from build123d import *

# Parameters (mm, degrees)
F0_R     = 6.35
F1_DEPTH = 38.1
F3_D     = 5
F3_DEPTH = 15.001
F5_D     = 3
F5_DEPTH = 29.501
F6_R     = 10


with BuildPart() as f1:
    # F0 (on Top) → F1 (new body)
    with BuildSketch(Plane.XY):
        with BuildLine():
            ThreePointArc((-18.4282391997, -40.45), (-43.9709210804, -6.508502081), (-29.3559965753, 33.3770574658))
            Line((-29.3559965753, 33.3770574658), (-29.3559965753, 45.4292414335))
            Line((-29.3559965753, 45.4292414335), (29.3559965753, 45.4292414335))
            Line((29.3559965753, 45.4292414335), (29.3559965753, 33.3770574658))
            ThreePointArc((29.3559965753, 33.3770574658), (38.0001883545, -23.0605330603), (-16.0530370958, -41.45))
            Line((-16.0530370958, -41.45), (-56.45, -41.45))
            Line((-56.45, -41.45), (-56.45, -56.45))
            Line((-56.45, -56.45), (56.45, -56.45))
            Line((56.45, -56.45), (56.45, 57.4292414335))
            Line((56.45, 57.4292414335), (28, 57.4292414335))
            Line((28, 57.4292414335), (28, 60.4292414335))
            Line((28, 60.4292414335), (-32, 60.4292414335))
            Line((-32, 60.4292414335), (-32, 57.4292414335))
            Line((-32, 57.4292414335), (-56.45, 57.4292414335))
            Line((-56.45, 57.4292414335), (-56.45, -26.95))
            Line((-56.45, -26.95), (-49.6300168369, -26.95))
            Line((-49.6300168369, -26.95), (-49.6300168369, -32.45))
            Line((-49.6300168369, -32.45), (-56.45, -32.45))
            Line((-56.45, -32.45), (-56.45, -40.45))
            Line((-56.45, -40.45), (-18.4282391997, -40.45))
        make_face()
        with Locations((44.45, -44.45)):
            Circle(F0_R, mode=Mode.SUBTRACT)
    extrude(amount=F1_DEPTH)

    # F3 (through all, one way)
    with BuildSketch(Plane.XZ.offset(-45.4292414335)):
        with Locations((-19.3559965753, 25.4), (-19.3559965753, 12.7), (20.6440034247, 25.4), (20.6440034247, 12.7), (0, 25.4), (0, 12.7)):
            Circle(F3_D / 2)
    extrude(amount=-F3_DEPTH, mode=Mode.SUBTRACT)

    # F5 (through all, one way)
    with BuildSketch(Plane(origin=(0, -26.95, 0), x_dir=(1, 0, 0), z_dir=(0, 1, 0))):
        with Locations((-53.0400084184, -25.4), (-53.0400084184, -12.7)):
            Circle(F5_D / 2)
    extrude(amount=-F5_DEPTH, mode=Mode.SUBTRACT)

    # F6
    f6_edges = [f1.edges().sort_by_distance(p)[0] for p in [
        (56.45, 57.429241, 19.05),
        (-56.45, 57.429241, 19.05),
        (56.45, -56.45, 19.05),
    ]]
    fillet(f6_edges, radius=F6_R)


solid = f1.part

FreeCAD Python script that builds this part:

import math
import FreeCAD as App
import Part
import Sketcher
from FreeCAD import Vector
Q = App.Units.Quantity


def edges_at(feature, points):
    """Names of the edges that pass closest to the given points."""
    edges = feature.Shape.Edges
    near = lambda p: min(range(len(edges)), key=lambda i: edges[i].distToShape(Part.Vertex(*p))[0])
    return sorted({f"Edge{near(p) + 1}" for p in points})

doc = App.newDocument("Part")
body = doc.addObject("PartDesign::Body", "Body")

# Sketch on XY plane
sketch1 = body.newObject("Sketcher::SketchObject", "Sketch")
sketch1.AttachmentSupport = (doc.getObject("XY_Plane"), [""])
sketch1.MapMode = "FlatFace"
sketch1.addGeometry(Part.ArcOfCircle(Part.Circle(Vector(0, 0, 0), Vector(0, 0, 1), 44.5), math.radians(131), math.radians(246)), False)
sketch1.addGeometry(Part.LineSegment(Vector(-29.4, 33.4, 0), Vector(-29.4, 45.4, 0)), False)
sketch1.addGeometry(Part.LineSegment(Vector(-29.4, 45.4, 0), Vector(29.4, 45.4, 0)), False)
sketch1.addGeometry(Part.LineSegment(Vector(29.4, 45.4, 0), Vector(29.4, 33.4, 0)), False)
sketch1.addGeometry(Part.ArcOfCircle(Part.Circle(Vector(0, 0, 0), Vector(0, 0, 1), 44.5), math.radians(-111), math.radians(49)), False)
sketch1.addGeometry(Part.LineSegment(Vector(-16.1, -41.5, 0), Vector(-56.5, -41.5, 0)), False)
sketch1.addGeometry(Part.LineSegment(Vector(-56.5, -41.5, 0), Vector(-56.5, -56.5, 0)), False)
sketch1.addGeometry(Part.LineSegment(Vector(-56.5, -56.5, 0), Vector(56.5, -56.5, 0)), False)
sketch1.addGeometry(Part.LineSegment(Vector(56.5, -56.5, 0), Vector(56.5, 57.4, 0)), False)
sketch1.addGeometry(Part.LineSegment(Vector(56.5, 57.4, 0), Vector(28, 57.4, 0)), False)
sketch1.addGeometry(Part.LineSegment(Vector(28, 57.4, 0), Vector(28, 60.4, 0)), False)
sketch1.addGeometry(Part.LineSegment(Vector(28, 60.4, 0), Vector(-32, 60.4, 0)), False)
sketch1.addGeometry(Part.LineSegment(Vector(-32, 60.4, 0), Vector(-32, 57.4, 0)), False)
sketch1.addGeometry(Part.LineSegment(Vector(-32, 57.4, 0), Vector(-56.5, 57.4, 0)), False)
sketch1.addGeometry(Part.LineSegment(Vector(-56.5, 57.4, 0), Vector(-56.5, -26.9, 0)), False)
sketch1.addGeometry(Part.LineSegment(Vector(-56.5, -26.9, 0), Vector(-49.6, -26.9, 0)), False)
sketch1.addGeometry(Part.LineSegment(Vector(-49.6, -26.9, 0), Vector(-49.6, -32.5, 0)), False)
sketch1.addGeometry(Part.LineSegment(Vector(-49.6, -32.5, 0), Vector(-56.5, -32.5, 0)), False)
sketch1.addGeometry(Part.LineSegment(Vector(-56.5, -32.5, 0), Vector(-56.5, -40.5, 0)), False)
sketch1.addGeometry(Part.LineSegment(Vector(-56.5, -40.5, 0), Vector(-18.4, -40.5, 0)), False)
sketch1.addGeometry(Part.Circle(Vector(44.5, -44.5, 0), Vector(0, 0, 1), 6.3), False)
sketch1.addConstraint(Sketcher.Constraint("Coincident", 0, 1, 1, 1))
sketch1.addConstraint(Sketcher.Constraint("Coincident", 1, 2, 2, 1))
sketch1.addConstraint(Sketcher.Constraint("Coincident", 2, 2, 3, 1))
sketch1.addConstraint(Sketcher.Constraint("Coincident", 3, 2, 4, 2))
sketch1.addConstraint(Sketcher.Constraint("Coincident", 4, 1, 5, 1))
sketch1.addConstraint(Sketcher.Constraint("Coincident", 5, 2, 6, 1))
sketch1.addConstraint(Sketcher.Constraint("Coincident", 6, 2, 7, 1))
sketch1.addConstraint(Sketcher.Constraint("Coincident", 7, 2, 8, 1))
sketch1.addConstraint(Sketcher.Constraint("Coincident", 8, 2, 9, 1))
sketch1.addConstraint(Sketcher.Constraint("Coincident", 9, 2, 10, 1))
sketch1.addConstraint(Sketcher.Constraint("Coincident", 10, 2, 11, 1))
sketch1.addConstraint(Sketcher.Constraint("Coincident", 11, 2, 12, 1))
sketch1.addConstraint(Sketcher.Constraint("Coincident", 12, 2, 13, 1))
sketch1.addConstraint(Sketcher.Constraint("Coincident", 13, 2, 14, 1))
sketch1.addConstraint(Sketcher.Constraint("Coincident", 14, 2, 15, 1))
sketch1.addConstraint(Sketcher.Constraint("Coincident", 15, 2, 16, 1))
sketch1.addConstraint(Sketcher.Constraint("Coincident", 16, 2, 17, 1))
sketch1.addConstraint(Sketcher.Constraint("Coincident", 17, 2, 18, 1))
sketch1.addConstraint(Sketcher.Constraint("Coincident", 18, 2, 19, 1))
sketch1.addConstraint(Sketcher.Constraint("Coincident", 19, 2, 0, 2))
sketch1.addConstraint(Sketcher.Constraint("Vertical", 1))
sketch1.addConstraint(Sketcher.Constraint("Horizontal", 2))
sketch1.addConstraint(Sketcher.Constraint("Vertical", 3))
sketch1.addConstraint(Sketcher.Constraint("Horizontal", 5))
sketch1.addConstraint(Sketcher.Constraint("Vertical", 6))
sketch1.addConstraint(Sketcher.Constraint("Horizontal", 7))
sketch1.addConstraint(Sketcher.Constraint("Vertical", 8))
sketch1.addConstraint(Sketcher.Constraint("Horizontal", 9))
sketch1.addConstraint(Sketcher.Constraint("Vertical", 10))
sketch1.addConstraint(Sketcher.Constraint("Horizontal", 11))
sketch1.addConstraint(Sketcher.Constraint("Vertical", 12))
sketch1.addConstraint(Sketcher.Constraint("Horizontal", 13))
sketch1.addConstraint(Sketcher.Constraint("Vertical", 14))
sketch1.addConstraint(Sketcher.Constraint("Horizontal", 15))
sketch1.addConstraint(Sketcher.Constraint("Vertical", 16))
sketch1.addConstraint(Sketcher.Constraint("Horizontal", 17))
sketch1.addConstraint(Sketcher.Constraint("Vertical", 18))
sketch1.addConstraint(Sketcher.Constraint("Horizontal", 19))
sketch1.addConstraint(Sketcher.Constraint("Coincident", 0, 3, -1, 1))
sketch1.addConstraint(Sketcher.Constraint("Coincident", 4, 3, -1, 1))
sketch1.addConstraint(Sketcher.Constraint("Equal", 0, 4))
sketch1.addConstraint(Sketcher.Constraint("Symmetric", 8, 2, 13, 2, -2))
sketch1.addConstraint(Sketcher.Constraint("Horizontal", 0, 1, 3, 2))
sketch1.addConstraint(Sketcher.Constraint("Vertical", 6, 2, 13, 2))
sketch1.addConstraint(Sketcher.Constraint("Vertical", 14, 2, 17, 2))
sketch1.addConstraint(Sketcher.Constraint("Diameter", 20, Q("12.7 mm")))
sketch1.addConstraint(Sketcher.Constraint("DistanceX", 11, 2, 11, 1, Q("60 mm")))
sketch1.addConstraint(Sketcher.Constraint("DistanceY", 6, 2, 6, 1, Q("15 mm")))
sketch1.addConstraint(Sketcher.Constraint("DistanceY", 10, 1, 10, 2, Q("3 mm")))
sketch1.addConstraint(Sketcher.Constraint("DistanceY", 18, 2, 18, 1, Q("8 mm")))
sketch1.addConstraint(Sketcher.Constraint("Radius", 0, Q("44.45 mm")))
sketch1.addConstraint(Sketcher.Constraint("DistanceX", 7, 1, 7, 2, Q("112.9 mm")))
sketch1.addConstraint(Sketcher.Constraint("DistanceY", 16, 2, 16, 1, Q("5.5 mm")))
sketch1.addConstraint(Sketcher.Constraint("DistanceX", -1, 1, 9, 2, Q("28 mm")))
sketch1.addConstraint(Sketcher.Constraint("DistanceY", 20, 3, 4, 1, Q("3 mm")))
sketch1.addConstraint(Sketcher.Constraint("DistanceX", 20, 3, 7, 2, Q("12 mm")))
sketch1.addConstraint(Sketcher.Constraint("DistanceY", 2, 2, 8, 2, Q("12 mm")))
sketch1.addConstraint(Sketcher.Constraint("DistanceY", 5, 2, 16, 2, Q("9 mm")))
sketch1.addConstraint(Sketcher.Constraint("DistanceY", 20, 3, -1, 1, Q("44.45 mm")))
sketch1.addConstraint(Sketcher.Constraint("DistanceY", 8, 1, 8, 2, Q("113.879241 mm")))
sketch1.addConstraint(Sketcher.Constraint("DistanceX", 2, 1, 2, 2, Q("58.711993 mm")))
sketch1.addConstraint(Sketcher.Constraint("DistanceX", 15, 1, 15, 2, Q("6.819983 mm")))
pad1 = body.newObject("PartDesign::Pad", "Pad")
pad1.Profile = sketch1
pad1.Length = 38.1

# Sketch on XZ plane
sketch2 = body.newObject("Sketcher::SketchObject", "Sketch001")
sketch2.AttachmentSupport = (doc.getObject("XZ_Plane"), [""])
sketch2.MapMode = "FlatFace"
sketch2.AttachmentOffset = App.Placement(Vector(0, 0, -45.429241), App.Rotation())
sketch2.addGeometry(Part.Circle(Vector(0, 12.7, 0), Vector(0, 0, 1), 2.5), False)
sketch2.addGeometry(Part.Circle(Vector(-19.4, 25.4, 0), Vector(0, 0, 1), 2.5), False)
sketch2.addGeometry(Part.Circle(Vector(-19.4, 12.7, 0), Vector(0, 0, 1), 2.5), False)
sketch2.addGeometry(Part.Circle(Vector(20.6, 25.4, 0), Vector(0, 0, 1), 2.5), False)
sketch2.addGeometry(Part.Circle(Vector(20.6, 12.7, 0), Vector(0, 0, 1), 2.5), False)
sketch2.addGeometry(Part.Circle(Vector(0, 25.4, 0), Vector(0, 0, 1), 2.5), False)
sketch2.addConstraint(Sketcher.Constraint("Equal", 0, 1))
sketch2.addConstraint(Sketcher.Constraint("Equal", 1, 2))
sketch2.addConstraint(Sketcher.Constraint("Equal", 2, 3))
sketch2.addConstraint(Sketcher.Constraint("Equal", 3, 4))
sketch2.addConstraint(Sketcher.Constraint("Equal", 4, 5))
sketch2.addConstraint(Sketcher.Constraint("PointOnObject", 0, 3, -2))
sketch2.addConstraint(Sketcher.Constraint("PointOnObject", 5, 3, -2))
sketch2.addConstraint(Sketcher.Constraint("Horizontal", 0, 3, 2, 3))
sketch2.addConstraint(Sketcher.Constraint("Horizontal", 1, 3, 3, 3))
sketch2.addConstraint(Sketcher.Constraint("Horizontal", 2, 3, 4, 3))
sketch2.addConstraint(Sketcher.Constraint("Horizontal", 3, 3, 5, 3))
sketch2.addConstraint(Sketcher.Constraint("Vertical", 1, 3, 2, 3))
sketch2.addConstraint(Sketcher.Constraint("Vertical", 3, 3, 4, 3))
sketch2.addConstraint(Sketcher.Constraint("Diameter", 0, Q("5 mm")))
sketch2.addConstraint(Sketcher.Constraint("DistanceX", 1, 3, 3, 3, Q("40 mm")))
sketch2.addConstraint(Sketcher.Constraint("DistanceY", -1, 1, 0, 3, Q("12.7 mm")))
sketch2.addConstraint(Sketcher.Constraint("DistanceY", -1, 1, 1, 3, Q("25.4 mm")))
sketch2.addConstraint(Sketcher.Constraint("DistanceX", 1, 3, -1, 1, Q("19.355997 mm")))
pocket1 = body.newObject("PartDesign::Pocket", "Pocket")
pocket1.Profile = sketch2
pocket1.Type = "ThroughAll"

# Sketch on XZ plane
sketch3 = body.newObject("Sketcher::SketchObject", "Sketch002")
sketch3.AttachmentSupport = (doc.getObject("XZ_Plane"), [""])
sketch3.MapMode = "FlatFace"
sketch3.AttachmentOffset = App.Placement(Vector(0, 0, 26.95), App.Rotation())
sketch3.addGeometry(Part.Circle(Vector(-53, 12.7, 0), Vector(0, 0, 1), 1.5), False)
sketch3.addGeometry(Part.Circle(Vector(-53, 25.4, 0), Vector(0, 0, 1), 1.5), False)
sketch3.addConstraint(Sketcher.Constraint("Equal", 0, 1))
sketch3.addConstraint(Sketcher.Constraint("Vertical", 0, 3, 1, 3))
sketch3.addConstraint(Sketcher.Constraint("Diameter", 0, Q("3 mm")))
sketch3.addConstraint(Sketcher.Constraint("DistanceY", -1, 1, 0, 3, Q("12.7 mm")))
sketch3.addConstraint(Sketcher.Constraint("DistanceY", -1, 1, 1, 3, Q("25.4 mm")))
sketch3.addConstraint(Sketcher.Constraint("DistanceX", 0, 3, -1, 1, Q("53.040008 mm")))
pocket2 = body.newObject("PartDesign::Pocket", "Pocket001")
pocket2.Profile = sketch3
pocket2.Type = "ThroughAll"
pocket2.Reversed = True
doc.recompute()

fillet = body.newObject("PartDesign::Fillet", "Fillet")
fillet.Base = (pocket2, edges_at(pocket2, [(56.45, 57.429, 19.05), (-56.45, 57.429, 19.05), (56.45, -56.45, 19.05)]))
fillet.Radius = 10

doc.recompute()
